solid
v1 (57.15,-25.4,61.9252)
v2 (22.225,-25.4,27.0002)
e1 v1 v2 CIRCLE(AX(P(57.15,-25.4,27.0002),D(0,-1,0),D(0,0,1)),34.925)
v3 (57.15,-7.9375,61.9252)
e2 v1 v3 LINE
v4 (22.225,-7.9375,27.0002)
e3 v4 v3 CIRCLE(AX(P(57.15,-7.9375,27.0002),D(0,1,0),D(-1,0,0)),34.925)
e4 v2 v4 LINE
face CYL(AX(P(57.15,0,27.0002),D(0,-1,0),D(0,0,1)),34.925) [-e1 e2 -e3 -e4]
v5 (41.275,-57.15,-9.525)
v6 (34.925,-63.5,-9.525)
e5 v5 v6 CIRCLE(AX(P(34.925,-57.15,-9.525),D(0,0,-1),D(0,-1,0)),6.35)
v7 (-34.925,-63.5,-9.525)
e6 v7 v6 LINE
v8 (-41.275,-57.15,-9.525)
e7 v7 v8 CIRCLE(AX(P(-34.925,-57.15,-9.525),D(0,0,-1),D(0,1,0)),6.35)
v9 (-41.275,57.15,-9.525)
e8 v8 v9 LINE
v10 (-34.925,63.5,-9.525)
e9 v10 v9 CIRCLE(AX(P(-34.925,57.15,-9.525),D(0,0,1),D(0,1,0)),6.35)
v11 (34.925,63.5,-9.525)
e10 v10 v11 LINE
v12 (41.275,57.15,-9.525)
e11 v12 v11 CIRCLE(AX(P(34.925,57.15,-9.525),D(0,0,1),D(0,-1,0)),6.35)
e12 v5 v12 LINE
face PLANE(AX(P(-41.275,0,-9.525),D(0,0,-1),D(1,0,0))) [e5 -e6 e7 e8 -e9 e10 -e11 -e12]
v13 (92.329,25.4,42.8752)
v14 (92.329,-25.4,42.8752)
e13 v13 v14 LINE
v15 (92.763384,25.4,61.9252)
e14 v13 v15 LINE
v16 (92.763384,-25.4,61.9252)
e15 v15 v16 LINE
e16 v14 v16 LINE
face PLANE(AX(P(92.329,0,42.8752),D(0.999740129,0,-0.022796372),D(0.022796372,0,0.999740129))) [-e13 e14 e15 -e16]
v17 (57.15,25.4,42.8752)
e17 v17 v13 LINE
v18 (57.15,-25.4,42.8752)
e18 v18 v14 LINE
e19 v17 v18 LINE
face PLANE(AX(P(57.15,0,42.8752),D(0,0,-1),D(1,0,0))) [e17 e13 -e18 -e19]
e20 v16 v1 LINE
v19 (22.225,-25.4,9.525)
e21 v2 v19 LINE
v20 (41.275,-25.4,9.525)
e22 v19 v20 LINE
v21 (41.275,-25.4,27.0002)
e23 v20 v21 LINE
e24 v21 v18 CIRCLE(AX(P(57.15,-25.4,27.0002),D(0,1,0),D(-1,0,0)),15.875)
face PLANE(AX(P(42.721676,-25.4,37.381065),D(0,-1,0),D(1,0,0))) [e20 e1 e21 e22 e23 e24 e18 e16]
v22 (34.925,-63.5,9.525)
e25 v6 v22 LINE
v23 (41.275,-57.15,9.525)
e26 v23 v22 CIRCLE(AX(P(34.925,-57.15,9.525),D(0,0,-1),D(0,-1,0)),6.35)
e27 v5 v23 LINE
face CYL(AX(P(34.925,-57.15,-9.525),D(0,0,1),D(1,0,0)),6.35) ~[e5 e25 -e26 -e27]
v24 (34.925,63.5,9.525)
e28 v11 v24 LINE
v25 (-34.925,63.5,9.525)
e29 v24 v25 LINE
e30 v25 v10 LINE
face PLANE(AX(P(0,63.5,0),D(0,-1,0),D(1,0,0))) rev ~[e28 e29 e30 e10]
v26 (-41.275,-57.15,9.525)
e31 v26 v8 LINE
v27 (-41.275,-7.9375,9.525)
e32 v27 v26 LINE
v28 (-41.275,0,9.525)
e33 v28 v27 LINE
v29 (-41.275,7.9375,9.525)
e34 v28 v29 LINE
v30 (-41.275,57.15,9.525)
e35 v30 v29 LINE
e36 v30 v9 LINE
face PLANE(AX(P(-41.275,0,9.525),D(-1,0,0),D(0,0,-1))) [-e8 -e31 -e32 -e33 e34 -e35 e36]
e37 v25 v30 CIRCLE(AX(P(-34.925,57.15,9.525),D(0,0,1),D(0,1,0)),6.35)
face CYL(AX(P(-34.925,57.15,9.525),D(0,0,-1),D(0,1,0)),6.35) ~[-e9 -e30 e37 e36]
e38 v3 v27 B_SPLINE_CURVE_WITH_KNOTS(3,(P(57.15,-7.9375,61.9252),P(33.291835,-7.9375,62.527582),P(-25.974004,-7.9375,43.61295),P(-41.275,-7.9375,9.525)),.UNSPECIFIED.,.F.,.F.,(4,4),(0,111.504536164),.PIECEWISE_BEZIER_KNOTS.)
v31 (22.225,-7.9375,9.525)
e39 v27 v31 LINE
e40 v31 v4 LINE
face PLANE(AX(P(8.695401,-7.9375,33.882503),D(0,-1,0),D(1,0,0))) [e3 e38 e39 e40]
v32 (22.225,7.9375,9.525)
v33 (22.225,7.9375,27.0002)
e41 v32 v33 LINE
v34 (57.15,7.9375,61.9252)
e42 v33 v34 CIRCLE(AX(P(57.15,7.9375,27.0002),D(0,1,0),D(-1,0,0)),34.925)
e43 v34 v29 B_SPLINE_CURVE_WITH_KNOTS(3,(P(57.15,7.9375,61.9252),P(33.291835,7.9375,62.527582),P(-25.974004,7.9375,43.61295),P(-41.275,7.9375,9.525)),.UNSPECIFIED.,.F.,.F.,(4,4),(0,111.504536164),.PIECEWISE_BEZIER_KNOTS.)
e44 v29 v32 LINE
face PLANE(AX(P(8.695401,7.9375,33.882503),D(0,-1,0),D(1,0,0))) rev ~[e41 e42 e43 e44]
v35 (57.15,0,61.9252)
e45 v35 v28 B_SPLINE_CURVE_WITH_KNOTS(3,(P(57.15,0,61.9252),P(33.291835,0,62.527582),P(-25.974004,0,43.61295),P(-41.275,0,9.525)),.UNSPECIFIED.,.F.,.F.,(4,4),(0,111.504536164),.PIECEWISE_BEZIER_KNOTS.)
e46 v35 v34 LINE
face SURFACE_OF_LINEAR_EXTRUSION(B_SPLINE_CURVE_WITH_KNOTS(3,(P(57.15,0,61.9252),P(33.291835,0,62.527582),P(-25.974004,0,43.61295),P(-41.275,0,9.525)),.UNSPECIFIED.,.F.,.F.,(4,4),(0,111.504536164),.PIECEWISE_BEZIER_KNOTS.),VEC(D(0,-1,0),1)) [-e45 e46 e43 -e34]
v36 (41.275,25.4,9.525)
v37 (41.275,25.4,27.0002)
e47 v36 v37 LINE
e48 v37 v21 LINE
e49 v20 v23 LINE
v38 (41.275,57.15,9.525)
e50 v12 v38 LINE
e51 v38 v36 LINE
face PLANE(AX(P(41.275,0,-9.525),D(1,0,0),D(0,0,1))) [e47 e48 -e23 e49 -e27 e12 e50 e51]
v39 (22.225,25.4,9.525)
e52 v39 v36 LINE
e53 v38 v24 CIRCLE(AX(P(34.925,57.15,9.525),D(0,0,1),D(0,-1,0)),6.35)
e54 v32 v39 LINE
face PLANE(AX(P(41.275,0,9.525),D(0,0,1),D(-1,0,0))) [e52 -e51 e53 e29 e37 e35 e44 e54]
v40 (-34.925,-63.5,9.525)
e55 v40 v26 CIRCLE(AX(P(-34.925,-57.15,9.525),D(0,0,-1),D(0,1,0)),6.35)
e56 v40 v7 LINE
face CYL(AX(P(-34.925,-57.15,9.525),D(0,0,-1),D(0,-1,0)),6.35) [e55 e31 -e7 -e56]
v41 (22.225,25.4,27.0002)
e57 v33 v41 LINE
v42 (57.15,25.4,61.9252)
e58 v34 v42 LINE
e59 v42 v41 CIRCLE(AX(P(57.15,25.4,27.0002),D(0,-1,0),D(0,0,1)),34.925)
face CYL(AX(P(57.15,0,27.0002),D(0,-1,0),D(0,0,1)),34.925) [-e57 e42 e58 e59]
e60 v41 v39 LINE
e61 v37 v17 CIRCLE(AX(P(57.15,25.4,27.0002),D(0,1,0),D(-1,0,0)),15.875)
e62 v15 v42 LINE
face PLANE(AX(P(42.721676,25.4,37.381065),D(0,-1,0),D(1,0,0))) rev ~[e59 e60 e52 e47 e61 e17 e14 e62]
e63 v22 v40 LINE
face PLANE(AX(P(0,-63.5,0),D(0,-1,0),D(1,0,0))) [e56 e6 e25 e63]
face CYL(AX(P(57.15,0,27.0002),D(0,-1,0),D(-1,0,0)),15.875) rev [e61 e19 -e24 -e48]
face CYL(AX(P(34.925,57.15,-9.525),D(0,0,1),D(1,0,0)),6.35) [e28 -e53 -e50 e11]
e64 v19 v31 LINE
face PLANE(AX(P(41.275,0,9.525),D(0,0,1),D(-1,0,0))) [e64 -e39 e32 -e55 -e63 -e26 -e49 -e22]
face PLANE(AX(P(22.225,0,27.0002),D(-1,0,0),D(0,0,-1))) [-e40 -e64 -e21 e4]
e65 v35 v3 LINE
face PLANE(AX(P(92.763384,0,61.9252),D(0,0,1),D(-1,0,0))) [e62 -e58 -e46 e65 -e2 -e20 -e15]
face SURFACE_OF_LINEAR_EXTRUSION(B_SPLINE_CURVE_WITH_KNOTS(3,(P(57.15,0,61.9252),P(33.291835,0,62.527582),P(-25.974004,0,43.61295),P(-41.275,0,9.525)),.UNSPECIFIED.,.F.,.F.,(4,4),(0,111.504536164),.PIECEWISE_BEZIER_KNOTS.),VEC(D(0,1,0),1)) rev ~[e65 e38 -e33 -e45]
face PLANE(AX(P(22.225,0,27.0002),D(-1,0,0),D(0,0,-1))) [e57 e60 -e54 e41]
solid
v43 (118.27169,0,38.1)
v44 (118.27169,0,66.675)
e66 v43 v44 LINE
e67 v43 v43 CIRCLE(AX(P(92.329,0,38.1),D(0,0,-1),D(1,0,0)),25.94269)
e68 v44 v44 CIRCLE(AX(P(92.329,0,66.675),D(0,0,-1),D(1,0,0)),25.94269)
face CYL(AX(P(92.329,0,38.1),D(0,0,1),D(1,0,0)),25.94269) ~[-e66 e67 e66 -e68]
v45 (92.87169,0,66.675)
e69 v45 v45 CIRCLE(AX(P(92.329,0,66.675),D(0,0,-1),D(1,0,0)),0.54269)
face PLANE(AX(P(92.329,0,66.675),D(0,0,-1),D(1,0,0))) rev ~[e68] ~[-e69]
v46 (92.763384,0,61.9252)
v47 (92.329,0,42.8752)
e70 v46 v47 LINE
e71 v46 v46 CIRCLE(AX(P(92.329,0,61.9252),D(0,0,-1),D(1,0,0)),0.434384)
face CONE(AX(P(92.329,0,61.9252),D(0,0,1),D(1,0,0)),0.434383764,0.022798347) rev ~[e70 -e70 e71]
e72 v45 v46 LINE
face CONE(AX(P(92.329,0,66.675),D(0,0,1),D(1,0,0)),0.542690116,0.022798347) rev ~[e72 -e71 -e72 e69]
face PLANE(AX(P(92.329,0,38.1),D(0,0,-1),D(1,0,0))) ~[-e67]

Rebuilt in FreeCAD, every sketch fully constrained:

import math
import FreeCAD as App
import Part
import Sketcher

V = App.Vector
Q = App.Units.Quantity


def edges_at(feature, points):
    """Names of the edges that pass closest to the given points."""
    edges = feature.Shape.Edges
    near = lambda p: min(range(len(edges)), key=lambda i: edges[i].distToShape(Part.Vertex(*p))[0])
    return sorted({f"Edge{near(p) + 1}" for p in points})


def add_polygon(sketch, points):
    """Adds a closed chain of lines whose ends are joined by coincident constraints."""
    first, n = sketch.GeometryCount, len(points)
    for a, b in zip(points, points[1:] + points[:1]):
        sketch.addGeometry(Part.LineSegment(App.Vector(*a, 0), App.Vector(*b, 0)), False)
    for i in range(n):
        sketch.addConstraint(Sketcher.Constraint("Coincident", first + i, 2, first + (i + 1) % n, 1))

doc = App.newDocument("Part")
params = doc.addObject("Spreadsheet::Sheet", "Params")
for row, (alias, value) in enumerate([
    ("sketch1_width", "3.25 in"),
    ("sketch1_height", "0.75 in"),
    ("pad1_length", "5 in"),
    ("sketch2_radius", "0.625 in"),
    ("sketch2_radius2", "1.375 in"),
    ("sketch2_width", "1.385 in"),
    ("sketch2_height", "0.688 in"),
    ("pad2_length", "2 in"),
    ("sketch3_width", "2.5 in"),
    ("sketch3_radius", "1.375 in"),
    ("pad3_length", "0.625 in"),
    ("fillet_radius", "0.25 in"),
    ("sketch4_width", "1 in"),
    ("sketch4_height", "0.188 in"),
    ("sketch4_height2", "1.125 in"),
    ("revolution_angle", "360 deg"),
], start=1):
    params.set(f"A{row}", alias)
    params.set(f"B{row}", "=" + value)
    params.setAlias(f"B{row}", alias)

body = doc.addObject("PartDesign::Body", "Body")

# Sketch on XZ plane
sketch1 = doc.addObject("Sketcher::SketchObject", "Sketch")
body.addObject(sketch1)
sketch1.AttachmentSupport = (doc.XZ_Plane, [""])
sketch1.MapMode = "FlatFace"
add_polygon(sketch1, [(41.275, -9.525), (41.275, 9.525), (-41.275, 9.525), (-41.275, -9.525)])  # lines 0-3
sketch1.addConstraint([
    Sketcher.Constraint("Vertical", 0),
    Sketcher.Constraint("Horizontal", 1),
    Sketcher.Constraint("Vertical", 2),
    Sketcher.Constraint("Horizontal", 3),
    Sketcher.Constraint("Symmetric", 0, 2, 2, 2, -1, 1),
    Sketcher.Constraint("DistanceX", 1, 2, 1, 1, Q("3.25 in")),
    Sketcher.Constraint("DistanceY", 0, 1, 0, 2, Q("0.75 in")),
])
sketch1.setExpression("Constraints[9]", "Params.sketch1_width")
sketch1.setExpression("Constraints[10]", "Params.sketch1_height")
pad1 = doc.addObject("PartDesign::Pad", "Pad")
body.addObject(pad1)
pad1.Profile = sketch1
pad1.setExpression("Length", "Params.pad1_length")
pad1.Midplane = True

# Sketch on XZ plane
sketch2 = doc.addObject("Sketcher::SketchObject", "Sketch001")
body.addObject(sketch2)
sketch2.AttachmentSupport = (doc.XZ_Plane, [""])
sketch2.MapMode = "FlatFace"
sketch2.addGeometry([
    Part.LineSegment(V(22.225, 9.525, 0), V(41.275, 9.525, 0)),  # 0
    Part.LineSegment(V(41.275, 9.525, 0), V(41.275, 27.0002, 0)),  # 1
    Part.ArcOfCircle(Part.Circle(V(57.15, 27.0002, 0), V(0, 0, 1), 15.875), math.radians(90), math.radians(180)),  # 2
    Part.LineSegment(V(57.15, 42.8752, 0), V(92.329, 42.8752, 0)),  # 3
    Part.LineSegment(V(92.329, 42.8752, 0), V(92.763384, 61.9252, 0)),  # 4
    Part.LineSegment(V(92.763384, 61.9252, 0), V(57.15, 61.9252, 0)),  # 5
    Part.ArcOfCircle(Part.Circle(V(57.15, 27.0002, 0), V(0, 0, 1), 34.925), math.radians(90), math.radians(180)),  # 6
    Part.LineSegment(V(22.225, 27.0002, 0), V(22.225, 9.525, 0)),  # 7
], False)
sketch2.addConstraint([
    Sketcher.Constraint("Coincident", 0, 2, 1, 1),
    Sketcher.Constraint("Tangent", 1, 2, 2, 2),
    Sketcher.Constraint("Tangent", 2, 1, 3, 1),
    Sketcher.Constraint("Coincident", 3, 2, 4, 1),
    Sketcher.Constraint("Coincident", 4, 2, 5, 1),
    Sketcher.Constraint("Tangent", 5, 2, 6, 1),
    Sketcher.Constraint("Tangent", 6, 2, 7, 1),
    Sketcher.Constraint("Coincident", 7, 2, 0, 1),
    Sketcher.Constraint("Horizontal", 0),
    Sketcher.Constraint("Vertical", 1),
    Sketcher.Constraint("Horizontal", 3),
    Sketcher.Constraint("Horizontal", 5),
    Sketcher.Constraint("Vertical", 7),
    Sketcher.Constraint("Coincident", 6, 3, 2, 3),
    Sketcher.Constraint("Radius", 2, Q("0.625 in")),
    Sketcher.Constraint("Radius", 6, Q("1.375 in")),
    Sketcher.Constraint("DistanceX", 3, 1, 3, 2, Q("1.385 in")),
    Sketcher.Constraint("DistanceY", 1, 1, 1, 2, Q("0.688 in")),
    Sketcher.Constraint("DistanceX", -1, 1, 2, 3, Q("2.25 in")),
    Sketcher.Constraint("DistanceY", -1, 1, 2, 3, Q("1.063 in")),
    Sketcher.Constraint("Distance", 4, Q("19.054952 mm")),
])
sketch2.setExpression("Constraints[14]", "Params.sketch2_radius")
sketch2.setExpression("Constraints[15]", "Params.sketch2_radius2")
sketch2.setExpression("Constraints[16]", "Params.sketch2_width")
sketch2.setExpression("Constraints[17]", "Params.sketch2_height")
pad2 = doc.addObject("PartDesign::Pad", "Pad001")
body.addObject(pad2)
pad2.Profile = sketch2
pad2.setExpression("Length", "Params.pad2_length")
pad2.Midplane = True

# Sketch on XZ plane
sketch3 = doc.addObject("Sketcher::SketchObject", "Sketch002")
body.addObject(sketch3)
sketch3.AttachmentSupport = (doc.XZ_Plane, [""])
sketch3.MapMode = "FlatFace"
sketch3.addGeometry([
    Part.LineSegment(V(-41.275, 9.525, 0), V(22.225, 9.525, 0)),
    Part.LineSegment(V(22.225, 9.525, 0), V(22.225, 27.0002, 0)),
    Part.ArcOfCircle(Part.Circle(V(57.15, 27.0002, 0), V(0, 0, 1), 34.925), math.radians(90), math.radians(180)),
    Part.BSplineCurve([V(57.15, 61.9252, 0), V(33.291835, 62.527582, 0), V(-25.974004, 43.61295, 0), V(-41.275, 9.525, 0)], [4, 4], [0, 111.504536164], False, 3, [1, 1, 1, 1], False),
], False)
sketch3.addConstraint([
    Sketcher.Constraint("Block", 3),
    Sketcher.Constraint("Coincident", 0, 2, 1, 1),
    Sketcher.Constraint("Tangent", 1, 2, 2, 2),
    Sketcher.Constraint("Coincident", 2, 1, 3, 1),
    Sketcher.Constraint("Coincident", 3, 2, 0, 1),
    Sketcher.Constraint("Horizontal", 0),
    Sketcher.Constraint("Vertical", 1),
    Sketcher.Constraint("DistanceX", 0, 1, 0, 2, Q("2.5 in")),
    Sketcher.Constraint("Radius", 2, Q("1.375 in")),
])
sketch3.setExpression("Constraints[7]", "Params.sketch3_width")
sketch3.setExpression("Constraints[8]", "Params.sketch3_radius")
pad3 = doc.addObject("PartDesign::Pad", "Pad002")
body.addObject(pad3)
pad3.Profile = sketch3
pad3.setExpression("Length", "Params.pad3_length")
pad3.Midplane = True
doc.recompute()

fillet = doc.addObject("PartDesign::Fillet", "Fillet")
body.addObject(fillet)
fillet.Base = (pad3, edges_at(pad3, [
    (41.275, -63.5, 0),
    (-41.275, -63.5, 0),
    (-41.275, 63.5, 0),
    (41.275, 63.5, 0),
]))
fillet.setExpression("Radius", "Params.fillet_radius")
body2 = doc.addObject("PartDesign::Body", "Body001")

# Sketch on XZ plane
sketch4 = doc.addObject("Sketcher::SketchObject", "Sketch003")
body2.addObject(sketch4)
sketch4.AttachmentSupport = (doc.getObject("XZ_Plane001"), [""])
sketch4.MapMode = "FlatFace"
add_polygon(sketch4, [(92.763384, 61.9252), (92.329, 42.8752), (92.329, 38.1), (118.27169, 38.1), (118.27169, 66.675), (92.87169, 66.675)])  # lines 0-5
sketch4.addGeometry(Part.LineSegment(V(92.329, 66.675, 0), V(92.329, 38.1, 0)), True)  # axis
sketch4.addConstraint([
    Sketcher.Constraint("Vertical", 1),
    Sketcher.Constraint("Horizontal", 2),
    Sketcher.Constraint("Vertical", 3),
    Sketcher.Constraint("Horizontal", 4),
    Sketcher.Constraint("Vertical", 6),
    Sketcher.Constraint("Coincident", 6, 2, 1, 2),
    Sketcher.Constraint("Parallel", 0, 5),
    Sketcher.Constraint("Horizontal", 4, 2, 6, 1),
    Sketcher.Constraint("DistanceX", 4, 2, 4, 1, Q("1 in")),
    Sketcher.Constraint("DistanceY", -1, 1, 1, 2, Q("1.5 in")),
    Sketcher.Constraint("DistanceY", 1, 2, 1, 1, Q("0.188 in")),
    Sketcher.Constraint("DistanceY", 3, 1, 3, 2, Q("1.125 in")),
    Sketcher.Constraint("DistanceY", 0, 2, 5, 2, Q("0.75 in")),
    Sketcher.Constraint("DistanceX", -1, 1, 0, 2, Q("3.635 in")),
    Sketcher.Constraint("DistanceX", 2, 1, 2, 2, Q("25.94269 mm")),
])
sketch4.setExpression("Constraints[14]", "Params.sketch4_width")
sketch4.setExpression("Constraints[16]", "Params.sketch4_height")
sketch4.setExpression("Constraints[17]", "Params.sketch4_height2")
revolution = doc.addObject("PartDesign::Revolution", "Revolution")
body2.addObject(revolution)
revolution.Profile = sketch4
revolution.ReferenceAxis = (sketch4, ["Axis0"])
revolution.setExpression("Angle", "Params.revolution_angle")

doc.recompute()
